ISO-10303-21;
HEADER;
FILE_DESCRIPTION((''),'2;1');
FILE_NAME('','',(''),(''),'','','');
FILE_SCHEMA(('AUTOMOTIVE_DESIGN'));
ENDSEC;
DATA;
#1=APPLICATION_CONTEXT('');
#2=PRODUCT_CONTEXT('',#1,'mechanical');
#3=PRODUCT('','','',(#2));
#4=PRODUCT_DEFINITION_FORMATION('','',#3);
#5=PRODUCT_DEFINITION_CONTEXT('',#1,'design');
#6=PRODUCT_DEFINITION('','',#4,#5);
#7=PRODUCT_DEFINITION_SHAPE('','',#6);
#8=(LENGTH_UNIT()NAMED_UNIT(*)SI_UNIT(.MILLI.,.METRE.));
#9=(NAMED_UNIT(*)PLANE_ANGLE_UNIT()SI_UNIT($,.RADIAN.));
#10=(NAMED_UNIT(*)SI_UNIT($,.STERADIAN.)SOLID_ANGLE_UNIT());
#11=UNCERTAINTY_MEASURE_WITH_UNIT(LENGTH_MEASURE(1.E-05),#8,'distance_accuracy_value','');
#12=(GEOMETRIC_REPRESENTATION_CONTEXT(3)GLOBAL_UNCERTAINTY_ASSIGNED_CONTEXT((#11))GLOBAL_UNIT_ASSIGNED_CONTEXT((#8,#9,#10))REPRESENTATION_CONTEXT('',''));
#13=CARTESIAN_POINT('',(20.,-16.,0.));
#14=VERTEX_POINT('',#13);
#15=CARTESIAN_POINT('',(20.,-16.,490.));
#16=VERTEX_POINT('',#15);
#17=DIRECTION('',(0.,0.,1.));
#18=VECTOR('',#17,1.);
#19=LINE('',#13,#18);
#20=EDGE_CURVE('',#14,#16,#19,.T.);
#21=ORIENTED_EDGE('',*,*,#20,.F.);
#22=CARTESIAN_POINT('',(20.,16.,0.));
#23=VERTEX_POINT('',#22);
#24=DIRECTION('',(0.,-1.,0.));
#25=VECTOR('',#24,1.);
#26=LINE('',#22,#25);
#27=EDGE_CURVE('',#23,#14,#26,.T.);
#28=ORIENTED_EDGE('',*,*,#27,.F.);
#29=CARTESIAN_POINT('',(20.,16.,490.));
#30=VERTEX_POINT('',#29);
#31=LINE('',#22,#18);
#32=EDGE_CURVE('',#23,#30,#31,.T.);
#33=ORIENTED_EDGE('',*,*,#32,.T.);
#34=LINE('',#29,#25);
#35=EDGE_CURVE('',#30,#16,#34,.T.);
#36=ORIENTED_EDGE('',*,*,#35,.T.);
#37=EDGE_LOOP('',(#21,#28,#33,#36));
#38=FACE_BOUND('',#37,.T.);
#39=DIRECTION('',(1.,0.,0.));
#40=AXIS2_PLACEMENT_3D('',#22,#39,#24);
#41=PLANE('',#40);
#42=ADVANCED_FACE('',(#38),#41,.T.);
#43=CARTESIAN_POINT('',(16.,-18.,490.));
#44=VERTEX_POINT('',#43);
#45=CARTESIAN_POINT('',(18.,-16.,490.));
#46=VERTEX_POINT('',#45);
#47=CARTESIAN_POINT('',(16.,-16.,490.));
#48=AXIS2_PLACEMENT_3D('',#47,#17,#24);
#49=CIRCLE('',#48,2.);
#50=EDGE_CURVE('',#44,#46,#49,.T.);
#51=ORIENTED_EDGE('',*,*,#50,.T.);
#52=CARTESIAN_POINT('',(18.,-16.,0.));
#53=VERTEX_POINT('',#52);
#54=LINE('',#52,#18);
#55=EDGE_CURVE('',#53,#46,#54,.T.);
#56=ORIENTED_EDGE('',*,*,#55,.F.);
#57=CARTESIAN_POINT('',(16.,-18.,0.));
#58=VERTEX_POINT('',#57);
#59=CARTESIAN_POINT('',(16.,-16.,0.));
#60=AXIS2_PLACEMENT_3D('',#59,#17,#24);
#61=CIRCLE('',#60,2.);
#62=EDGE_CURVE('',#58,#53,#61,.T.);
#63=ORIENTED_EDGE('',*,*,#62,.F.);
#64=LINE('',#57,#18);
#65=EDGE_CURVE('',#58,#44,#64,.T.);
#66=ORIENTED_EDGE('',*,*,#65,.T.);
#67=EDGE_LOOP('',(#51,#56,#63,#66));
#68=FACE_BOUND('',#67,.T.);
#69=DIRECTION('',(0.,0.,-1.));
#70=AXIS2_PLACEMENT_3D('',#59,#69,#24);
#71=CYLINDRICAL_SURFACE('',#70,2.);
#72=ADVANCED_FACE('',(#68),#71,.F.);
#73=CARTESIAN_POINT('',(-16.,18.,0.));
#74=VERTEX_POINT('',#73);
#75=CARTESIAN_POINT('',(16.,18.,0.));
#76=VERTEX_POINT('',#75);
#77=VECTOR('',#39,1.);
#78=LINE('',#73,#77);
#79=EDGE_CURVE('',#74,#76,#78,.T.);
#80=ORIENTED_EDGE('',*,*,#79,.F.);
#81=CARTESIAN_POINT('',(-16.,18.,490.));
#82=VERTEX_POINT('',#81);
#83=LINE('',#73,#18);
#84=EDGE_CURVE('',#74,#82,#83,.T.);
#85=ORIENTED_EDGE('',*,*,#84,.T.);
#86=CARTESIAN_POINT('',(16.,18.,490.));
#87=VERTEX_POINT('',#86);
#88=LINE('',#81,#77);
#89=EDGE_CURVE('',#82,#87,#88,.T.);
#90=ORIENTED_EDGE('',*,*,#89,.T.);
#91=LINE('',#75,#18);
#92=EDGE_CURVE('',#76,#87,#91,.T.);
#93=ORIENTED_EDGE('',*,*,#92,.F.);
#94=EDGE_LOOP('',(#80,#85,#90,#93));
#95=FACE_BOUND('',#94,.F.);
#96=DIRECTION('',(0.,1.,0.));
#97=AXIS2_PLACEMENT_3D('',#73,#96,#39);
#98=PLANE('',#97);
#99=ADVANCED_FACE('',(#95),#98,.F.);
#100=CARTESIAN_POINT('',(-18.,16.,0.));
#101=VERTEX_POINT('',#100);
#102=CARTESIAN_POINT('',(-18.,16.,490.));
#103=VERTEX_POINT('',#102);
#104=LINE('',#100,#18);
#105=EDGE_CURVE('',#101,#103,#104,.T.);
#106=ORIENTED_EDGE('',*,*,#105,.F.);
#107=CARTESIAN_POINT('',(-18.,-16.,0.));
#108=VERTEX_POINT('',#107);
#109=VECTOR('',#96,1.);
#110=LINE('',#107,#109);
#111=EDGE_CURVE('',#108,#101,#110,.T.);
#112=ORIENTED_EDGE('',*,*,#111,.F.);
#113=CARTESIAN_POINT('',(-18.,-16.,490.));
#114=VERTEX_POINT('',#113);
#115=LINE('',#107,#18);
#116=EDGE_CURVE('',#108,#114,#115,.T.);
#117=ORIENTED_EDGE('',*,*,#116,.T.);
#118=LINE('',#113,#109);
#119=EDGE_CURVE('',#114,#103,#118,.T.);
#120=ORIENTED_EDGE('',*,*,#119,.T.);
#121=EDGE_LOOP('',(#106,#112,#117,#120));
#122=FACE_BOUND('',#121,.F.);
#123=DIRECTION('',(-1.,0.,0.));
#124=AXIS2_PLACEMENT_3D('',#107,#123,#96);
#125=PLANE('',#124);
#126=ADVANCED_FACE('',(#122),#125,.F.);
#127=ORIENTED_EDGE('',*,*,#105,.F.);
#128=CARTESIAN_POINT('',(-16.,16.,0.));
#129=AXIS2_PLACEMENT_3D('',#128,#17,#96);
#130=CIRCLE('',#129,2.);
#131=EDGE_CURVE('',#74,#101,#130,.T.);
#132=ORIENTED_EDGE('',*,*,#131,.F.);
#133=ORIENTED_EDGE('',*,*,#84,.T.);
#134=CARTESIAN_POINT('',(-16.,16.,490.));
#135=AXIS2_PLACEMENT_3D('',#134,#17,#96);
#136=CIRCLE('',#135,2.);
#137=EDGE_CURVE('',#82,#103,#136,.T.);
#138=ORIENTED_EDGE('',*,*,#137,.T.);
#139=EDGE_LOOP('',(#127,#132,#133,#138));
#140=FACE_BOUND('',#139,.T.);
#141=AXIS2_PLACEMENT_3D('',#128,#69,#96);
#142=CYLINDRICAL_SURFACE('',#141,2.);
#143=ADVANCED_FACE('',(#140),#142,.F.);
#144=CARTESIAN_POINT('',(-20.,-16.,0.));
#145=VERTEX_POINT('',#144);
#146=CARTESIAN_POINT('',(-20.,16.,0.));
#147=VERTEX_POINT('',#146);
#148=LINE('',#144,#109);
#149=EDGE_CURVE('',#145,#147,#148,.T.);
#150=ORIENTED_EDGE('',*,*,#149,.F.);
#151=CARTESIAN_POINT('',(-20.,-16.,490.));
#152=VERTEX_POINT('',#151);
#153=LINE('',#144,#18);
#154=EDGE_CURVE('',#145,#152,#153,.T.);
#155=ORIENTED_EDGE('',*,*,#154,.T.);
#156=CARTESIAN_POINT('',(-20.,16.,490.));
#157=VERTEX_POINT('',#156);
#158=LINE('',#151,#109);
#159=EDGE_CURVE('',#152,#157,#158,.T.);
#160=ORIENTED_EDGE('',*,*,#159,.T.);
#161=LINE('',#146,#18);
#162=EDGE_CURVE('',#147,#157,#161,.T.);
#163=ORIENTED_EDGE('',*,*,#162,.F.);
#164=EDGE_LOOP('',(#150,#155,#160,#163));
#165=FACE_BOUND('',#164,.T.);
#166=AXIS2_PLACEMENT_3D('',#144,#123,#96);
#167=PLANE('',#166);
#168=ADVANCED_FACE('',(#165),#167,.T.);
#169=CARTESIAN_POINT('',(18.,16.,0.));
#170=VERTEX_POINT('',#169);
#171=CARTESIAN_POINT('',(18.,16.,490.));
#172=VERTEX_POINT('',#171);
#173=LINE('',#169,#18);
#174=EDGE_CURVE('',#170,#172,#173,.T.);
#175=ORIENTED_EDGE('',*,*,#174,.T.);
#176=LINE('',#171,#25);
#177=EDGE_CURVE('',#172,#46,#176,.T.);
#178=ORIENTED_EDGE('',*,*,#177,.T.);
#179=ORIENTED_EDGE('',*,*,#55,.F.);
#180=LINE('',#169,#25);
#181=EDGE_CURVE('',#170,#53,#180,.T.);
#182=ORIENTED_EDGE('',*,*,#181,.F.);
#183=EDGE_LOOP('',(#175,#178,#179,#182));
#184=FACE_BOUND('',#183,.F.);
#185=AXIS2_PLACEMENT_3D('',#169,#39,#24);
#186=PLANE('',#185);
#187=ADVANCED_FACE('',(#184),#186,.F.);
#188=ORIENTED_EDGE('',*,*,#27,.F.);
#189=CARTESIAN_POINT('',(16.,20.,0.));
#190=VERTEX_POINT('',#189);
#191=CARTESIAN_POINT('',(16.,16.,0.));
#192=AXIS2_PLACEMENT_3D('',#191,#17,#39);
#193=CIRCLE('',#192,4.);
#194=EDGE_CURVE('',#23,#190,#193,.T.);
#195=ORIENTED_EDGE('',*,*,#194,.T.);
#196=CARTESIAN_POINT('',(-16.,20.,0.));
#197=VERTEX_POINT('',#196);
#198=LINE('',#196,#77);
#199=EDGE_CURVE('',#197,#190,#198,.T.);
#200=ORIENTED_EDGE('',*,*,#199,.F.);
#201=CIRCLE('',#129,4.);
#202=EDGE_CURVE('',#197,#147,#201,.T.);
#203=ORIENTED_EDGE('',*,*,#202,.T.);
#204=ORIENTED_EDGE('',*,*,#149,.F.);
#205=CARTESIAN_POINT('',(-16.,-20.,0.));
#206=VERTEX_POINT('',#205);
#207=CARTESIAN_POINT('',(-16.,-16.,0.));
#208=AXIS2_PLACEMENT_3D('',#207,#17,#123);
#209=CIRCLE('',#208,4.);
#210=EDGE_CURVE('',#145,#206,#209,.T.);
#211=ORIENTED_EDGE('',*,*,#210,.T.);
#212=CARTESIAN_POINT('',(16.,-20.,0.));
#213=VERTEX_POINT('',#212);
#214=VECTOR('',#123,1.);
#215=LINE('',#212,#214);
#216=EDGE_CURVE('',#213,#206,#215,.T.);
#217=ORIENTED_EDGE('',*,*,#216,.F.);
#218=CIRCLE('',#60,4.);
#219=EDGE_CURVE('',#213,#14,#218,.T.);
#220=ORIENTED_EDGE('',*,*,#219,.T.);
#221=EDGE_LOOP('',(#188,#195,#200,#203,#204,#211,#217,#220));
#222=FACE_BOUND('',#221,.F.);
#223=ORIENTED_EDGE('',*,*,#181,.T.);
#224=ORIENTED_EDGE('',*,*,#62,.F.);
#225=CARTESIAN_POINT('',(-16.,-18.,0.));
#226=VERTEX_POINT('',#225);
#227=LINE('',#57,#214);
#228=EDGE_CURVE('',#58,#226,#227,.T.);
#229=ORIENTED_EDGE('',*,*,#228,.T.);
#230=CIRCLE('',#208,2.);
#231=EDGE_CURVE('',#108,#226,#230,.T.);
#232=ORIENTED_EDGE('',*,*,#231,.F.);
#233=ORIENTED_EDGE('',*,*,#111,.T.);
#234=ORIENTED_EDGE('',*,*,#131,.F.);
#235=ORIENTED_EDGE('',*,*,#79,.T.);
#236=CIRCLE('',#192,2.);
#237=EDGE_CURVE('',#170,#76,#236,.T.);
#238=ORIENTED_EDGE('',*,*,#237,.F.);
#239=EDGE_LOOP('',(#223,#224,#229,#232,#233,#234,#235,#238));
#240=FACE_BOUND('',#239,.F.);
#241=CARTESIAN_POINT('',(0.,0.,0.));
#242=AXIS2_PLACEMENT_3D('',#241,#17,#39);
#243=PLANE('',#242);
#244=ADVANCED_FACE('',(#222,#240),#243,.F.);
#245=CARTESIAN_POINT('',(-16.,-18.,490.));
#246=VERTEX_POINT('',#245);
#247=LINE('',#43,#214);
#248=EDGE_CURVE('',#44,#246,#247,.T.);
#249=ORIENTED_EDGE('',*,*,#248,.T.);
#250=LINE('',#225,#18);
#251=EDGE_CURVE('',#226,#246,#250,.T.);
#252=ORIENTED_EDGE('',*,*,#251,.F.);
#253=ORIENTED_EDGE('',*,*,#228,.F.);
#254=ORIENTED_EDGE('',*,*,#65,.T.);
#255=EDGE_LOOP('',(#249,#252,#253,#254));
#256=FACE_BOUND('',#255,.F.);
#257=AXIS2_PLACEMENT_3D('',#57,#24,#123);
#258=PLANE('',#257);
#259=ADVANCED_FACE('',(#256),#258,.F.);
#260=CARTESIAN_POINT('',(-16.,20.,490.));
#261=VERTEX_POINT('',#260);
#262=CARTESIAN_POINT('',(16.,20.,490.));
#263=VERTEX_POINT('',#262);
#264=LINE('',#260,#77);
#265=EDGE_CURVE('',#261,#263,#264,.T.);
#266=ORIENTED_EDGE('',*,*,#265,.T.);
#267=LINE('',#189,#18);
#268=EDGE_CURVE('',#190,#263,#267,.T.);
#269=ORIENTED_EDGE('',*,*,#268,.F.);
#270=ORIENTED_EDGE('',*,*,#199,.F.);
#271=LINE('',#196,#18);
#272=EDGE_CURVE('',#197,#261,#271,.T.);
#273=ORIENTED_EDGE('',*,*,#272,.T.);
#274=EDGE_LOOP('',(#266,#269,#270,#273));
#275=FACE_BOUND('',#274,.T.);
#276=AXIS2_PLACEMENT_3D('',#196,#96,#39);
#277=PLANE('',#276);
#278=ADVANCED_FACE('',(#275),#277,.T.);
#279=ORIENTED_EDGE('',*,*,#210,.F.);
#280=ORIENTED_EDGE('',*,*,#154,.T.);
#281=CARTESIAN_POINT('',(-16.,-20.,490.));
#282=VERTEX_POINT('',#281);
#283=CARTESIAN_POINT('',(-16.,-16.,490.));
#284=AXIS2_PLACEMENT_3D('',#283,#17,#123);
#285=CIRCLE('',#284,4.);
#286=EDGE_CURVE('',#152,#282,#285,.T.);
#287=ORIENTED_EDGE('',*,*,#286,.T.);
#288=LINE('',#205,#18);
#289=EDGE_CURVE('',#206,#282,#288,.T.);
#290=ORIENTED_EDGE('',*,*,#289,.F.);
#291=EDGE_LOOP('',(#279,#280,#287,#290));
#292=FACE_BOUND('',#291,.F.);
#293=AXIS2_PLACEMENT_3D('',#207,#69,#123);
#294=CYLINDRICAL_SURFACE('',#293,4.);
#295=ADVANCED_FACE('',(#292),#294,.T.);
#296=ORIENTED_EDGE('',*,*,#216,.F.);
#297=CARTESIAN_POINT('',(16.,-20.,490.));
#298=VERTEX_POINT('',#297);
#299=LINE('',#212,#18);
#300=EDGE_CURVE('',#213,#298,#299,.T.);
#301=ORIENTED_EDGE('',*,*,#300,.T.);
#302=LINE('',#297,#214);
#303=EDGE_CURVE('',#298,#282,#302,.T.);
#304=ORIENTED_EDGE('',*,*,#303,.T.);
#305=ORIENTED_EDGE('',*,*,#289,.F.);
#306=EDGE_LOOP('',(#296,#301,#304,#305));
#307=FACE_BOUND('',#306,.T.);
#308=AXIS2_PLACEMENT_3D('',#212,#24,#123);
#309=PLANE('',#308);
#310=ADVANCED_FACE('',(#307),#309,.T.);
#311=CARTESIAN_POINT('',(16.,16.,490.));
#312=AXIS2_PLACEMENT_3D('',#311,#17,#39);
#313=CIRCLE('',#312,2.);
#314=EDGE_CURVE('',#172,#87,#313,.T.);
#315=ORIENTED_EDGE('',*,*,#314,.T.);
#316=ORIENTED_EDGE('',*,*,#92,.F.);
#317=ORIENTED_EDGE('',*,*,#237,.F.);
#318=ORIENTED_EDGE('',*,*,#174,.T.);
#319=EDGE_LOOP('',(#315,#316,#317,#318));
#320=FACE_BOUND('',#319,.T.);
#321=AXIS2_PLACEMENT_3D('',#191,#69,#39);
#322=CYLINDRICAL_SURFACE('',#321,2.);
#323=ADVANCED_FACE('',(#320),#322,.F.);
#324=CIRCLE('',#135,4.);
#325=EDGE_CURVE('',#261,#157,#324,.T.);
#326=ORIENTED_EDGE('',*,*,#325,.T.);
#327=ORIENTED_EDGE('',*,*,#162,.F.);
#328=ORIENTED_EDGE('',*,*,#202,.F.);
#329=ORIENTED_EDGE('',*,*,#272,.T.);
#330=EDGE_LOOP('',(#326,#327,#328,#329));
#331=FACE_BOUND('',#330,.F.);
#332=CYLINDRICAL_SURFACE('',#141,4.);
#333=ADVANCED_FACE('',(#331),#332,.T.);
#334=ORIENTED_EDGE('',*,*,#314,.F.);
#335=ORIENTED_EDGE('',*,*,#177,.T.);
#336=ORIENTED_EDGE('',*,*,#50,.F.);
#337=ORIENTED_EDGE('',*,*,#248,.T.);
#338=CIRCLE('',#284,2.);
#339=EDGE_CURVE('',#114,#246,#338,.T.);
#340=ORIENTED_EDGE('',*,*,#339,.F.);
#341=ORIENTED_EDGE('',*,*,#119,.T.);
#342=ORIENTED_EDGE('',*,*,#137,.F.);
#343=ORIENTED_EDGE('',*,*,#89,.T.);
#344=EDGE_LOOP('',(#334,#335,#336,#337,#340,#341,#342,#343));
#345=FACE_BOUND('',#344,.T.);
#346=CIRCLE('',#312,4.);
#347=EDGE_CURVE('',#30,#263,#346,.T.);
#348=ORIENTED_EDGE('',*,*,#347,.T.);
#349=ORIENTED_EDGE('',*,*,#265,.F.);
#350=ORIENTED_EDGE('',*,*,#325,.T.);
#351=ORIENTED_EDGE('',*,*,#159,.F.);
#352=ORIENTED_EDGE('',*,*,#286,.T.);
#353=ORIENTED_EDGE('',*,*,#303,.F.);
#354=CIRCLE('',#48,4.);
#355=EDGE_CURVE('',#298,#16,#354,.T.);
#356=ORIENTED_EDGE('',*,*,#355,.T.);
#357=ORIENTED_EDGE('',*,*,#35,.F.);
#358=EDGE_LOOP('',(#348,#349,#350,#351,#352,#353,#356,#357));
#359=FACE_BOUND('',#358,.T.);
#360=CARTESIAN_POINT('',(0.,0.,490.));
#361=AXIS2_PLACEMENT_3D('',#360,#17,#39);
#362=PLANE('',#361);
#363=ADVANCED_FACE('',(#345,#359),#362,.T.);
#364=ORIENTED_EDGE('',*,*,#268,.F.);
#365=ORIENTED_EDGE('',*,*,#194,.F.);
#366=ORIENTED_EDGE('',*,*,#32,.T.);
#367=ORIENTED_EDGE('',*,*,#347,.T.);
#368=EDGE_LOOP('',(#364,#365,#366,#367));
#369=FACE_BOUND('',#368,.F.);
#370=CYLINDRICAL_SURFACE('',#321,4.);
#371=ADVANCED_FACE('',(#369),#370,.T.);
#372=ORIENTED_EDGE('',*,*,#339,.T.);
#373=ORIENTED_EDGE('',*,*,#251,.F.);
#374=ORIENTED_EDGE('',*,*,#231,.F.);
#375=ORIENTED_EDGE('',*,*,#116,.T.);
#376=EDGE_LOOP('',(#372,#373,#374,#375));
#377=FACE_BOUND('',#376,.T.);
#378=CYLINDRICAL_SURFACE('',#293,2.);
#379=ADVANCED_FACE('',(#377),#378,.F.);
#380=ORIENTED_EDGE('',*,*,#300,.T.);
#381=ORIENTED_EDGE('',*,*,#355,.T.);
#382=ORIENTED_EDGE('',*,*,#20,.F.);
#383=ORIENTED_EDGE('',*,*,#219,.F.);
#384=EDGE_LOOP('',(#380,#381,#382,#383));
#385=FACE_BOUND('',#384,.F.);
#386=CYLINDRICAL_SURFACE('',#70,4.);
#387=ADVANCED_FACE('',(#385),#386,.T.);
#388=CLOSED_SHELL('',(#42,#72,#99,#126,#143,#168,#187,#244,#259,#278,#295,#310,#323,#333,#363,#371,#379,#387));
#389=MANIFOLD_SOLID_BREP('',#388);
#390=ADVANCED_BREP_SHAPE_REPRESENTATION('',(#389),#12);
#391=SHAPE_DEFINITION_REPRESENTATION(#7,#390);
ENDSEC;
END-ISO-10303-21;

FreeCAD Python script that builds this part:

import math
import FreeCAD as App
import Part
import Sketcher
from FreeCAD import Vector

doc = App.newDocument("Part")
body = doc.addObject("PartDesign::Body", "Body")

sketch1 = doc.addObject("Sketcher::SketchObject", "Sketch")
body.addObject(sketch1)
sketch1.AttachmentSupport = (doc.XY_Plane, [""])
sketch1.MapMode = "FlatFace"
sketch1.addGeometry(Part.LineSegment(Vector(-20, 16, 0), Vector(-20, -16, 0)), False)
sketch1.addGeometry(Part.ArcOfCircle(Part.Circle(Vector(-16, -16, 0), Vector(0, 0, 1), 4), math.radians(180), math.radians(270)), False)
sketch1.addGeometry(Part.LineSegment(Vector(-16, -20, 0), Vector(16, -20, 0)), False)
sketch1.addGeometry(Part.ArcOfCircle(Part.Circle(Vector(16, -16, 0), Vector(0, 0, 1), 4), math.radians(-90), math.radians(0)), False)
sketch1.addGeometry(Part.LineSegment(Vector(20, -16, 0), Vector(20, 16, 0)), False)
sketch1.addGeometry(Part.ArcOfCircle(Part.Circle(Vector(16, 16, 0), Vector(0, 0, 1), 4), math.radians(0), math.radians(90)), False)
sketch1.addGeometry(Part.LineSegment(Vector(16, 20, 0), Vector(-16, 20, 0)), False)
sketch1.addGeometry(Part.ArcOfCircle(Part.Circle(Vector(-16, 16, 0), Vector(0, 0, 1), 4), math.radians(90), math.radians(180)), False)
sketch1.addGeometry(Part.ArcOfCircle(Part.Circle(Vector(-16, 16, 0), Vector(0, 0, 1), 2), math.radians(90), math.radians(180)), False)
sketch1.addGeometry(Part.LineSegment(Vector(-16, 18, 0), Vector(16, 18, 0)), False)
sketch1.addGeometry(Part.ArcOfCircle(Part.Circle(Vector(16, 16, 0), Vector(0, 0, 1), 2), math.radians(0), math.radians(90)), False)
sketch1.addGeometry(Part.LineSegment(Vector(18, 16, 0), Vector(18, -16, 0)), False)
sketch1.addGeometry(Part.ArcOfCircle(Part.Circle(Vector(16, -16, 0), Vector(0, 0, 1), 2), math.radians(-90), math.radians(0)), False)
sketch1.addGeometry(Part.LineSegment(Vector(16, -18, 0), Vector(-16, -18, 0)), False)
sketch1.addGeometry(Part.ArcOfCircle(Part.Circle(Vector(-16, -16, 0), Vector(0, 0, 1), 2), math.radians(180), math.radians(270)), False)
sketch1.addGeometry(Part.LineSegment(Vector(-18, -16, 0), Vector(-18, 16, 0)), False)
sketch1.addConstraint(Sketcher.Constraint("Tangent", 0, 2, 1, 1))
sketch1.addConstraint(Sketcher.Constraint("Tangent", 1, 2, 2, 1))
sketch1.addConstraint(Sketcher.Constraint("Tangent", 2, 2, 3, 1))
sketch1.addConstraint(Sketcher.Constraint("Tangent", 3, 2, 4, 1))
sketch1.addConstraint(Sketcher.Constraint("Tangent", 4, 2, 5, 1))
sketch1.addConstraint(Sketcher.Constraint("Tangent", 5, 2, 6, 1))
sketch1.addConstraint(Sketcher.Constraint("Tangent", 6, 2, 7, 1))
sketch1.addConstraint(Sketcher.Constraint("Tangent", 7, 2, 0, 1))
sketch1.addConstraint(Sketcher.Constraint("Tangent", 8, 1, 9, 1))
sketch1.addConstraint(Sketcher.Constraint("Tangent", 9, 2, 10, 2))
sketch1.addConstraint(Sketcher.Constraint("Tangent", 10, 1, 11, 1))
sketch1.addConstraint(Sketcher.Constraint("Tangent", 11, 2, 12, 2))
sketch1.addConstraint(Sketcher.Constraint("Tangent", 12, 1, 13, 1))
sketch1.addConstraint(Sketcher.Constraint("Tangent", 13, 2, 14, 2))
sketch1.addConstraint(Sketcher.Constraint("Tangent", 14, 1, 15, 1))
sketch1.addConstraint(Sketcher.Constraint("Tangent", 15, 2, 8, 2))
sketch1.addConstraint(Sketcher.Constraint("Vertical", 0))
sketch1.addConstraint(Sketcher.Constraint("Horizontal", 2))
sketch1.addConstraint(Sketcher.Constraint("Vertical", 4))
sketch1.addConstraint(Sketcher.Constraint("Horizontal", 6))
sketch1.addConstraint(Sketcher.Constraint("Horizontal", 9))
sketch1.addConstraint(Sketcher.Constraint("Vertical", 11))
sketch1.addConstraint(Sketcher.Constraint("Horizontal", 13))
sketch1.addConstraint(Sketcher.Constraint("Vertical", 15))
sketch1.addConstraint(Sketcher.Constraint("Coincident", 8, 3, 7, 3))
sketch1.addConstraint(Sketcher.Constraint("Coincident", 10, 3, 5, 3))
sketch1.addConstraint(Sketcher.Constraint("Coincident", 12, 3, 3, 3))
sketch1.addConstraint(Sketcher.Constraint("Equal", 1, 3))
sketch1.addConstraint(Sketcher.Constraint("Equal", 3, 5))
sketch1.addConstraint(Sketcher.Constraint("Equal", 5, 7))
sketch1.addConstraint(Sketcher.Constraint("Equal", 12, 14))
sketch1.addConstraint(Sketcher.Constraint("Symmetric", 1, 3, 5, 3, -1, 1))
sketch1.addConstraint(Sketcher.Constraint("Equal", 13, 0))
sketch1.addConstraint(Sketcher.Constraint("Radius", 1, 4.0))
sketch1.addConstraint(Sketcher.Constraint("Radius", 8, 2.0))
sketch1.addConstraint(Sketcher.Constraint("DistanceX", 0, 2, -1, 1, 20.0))
pad1 = doc.addObject("PartDesign::Pad", "Pad")
body.addObject(pad1)
pad1.Profile = sketch1
pad1.Length = 490

doc.recompute()
